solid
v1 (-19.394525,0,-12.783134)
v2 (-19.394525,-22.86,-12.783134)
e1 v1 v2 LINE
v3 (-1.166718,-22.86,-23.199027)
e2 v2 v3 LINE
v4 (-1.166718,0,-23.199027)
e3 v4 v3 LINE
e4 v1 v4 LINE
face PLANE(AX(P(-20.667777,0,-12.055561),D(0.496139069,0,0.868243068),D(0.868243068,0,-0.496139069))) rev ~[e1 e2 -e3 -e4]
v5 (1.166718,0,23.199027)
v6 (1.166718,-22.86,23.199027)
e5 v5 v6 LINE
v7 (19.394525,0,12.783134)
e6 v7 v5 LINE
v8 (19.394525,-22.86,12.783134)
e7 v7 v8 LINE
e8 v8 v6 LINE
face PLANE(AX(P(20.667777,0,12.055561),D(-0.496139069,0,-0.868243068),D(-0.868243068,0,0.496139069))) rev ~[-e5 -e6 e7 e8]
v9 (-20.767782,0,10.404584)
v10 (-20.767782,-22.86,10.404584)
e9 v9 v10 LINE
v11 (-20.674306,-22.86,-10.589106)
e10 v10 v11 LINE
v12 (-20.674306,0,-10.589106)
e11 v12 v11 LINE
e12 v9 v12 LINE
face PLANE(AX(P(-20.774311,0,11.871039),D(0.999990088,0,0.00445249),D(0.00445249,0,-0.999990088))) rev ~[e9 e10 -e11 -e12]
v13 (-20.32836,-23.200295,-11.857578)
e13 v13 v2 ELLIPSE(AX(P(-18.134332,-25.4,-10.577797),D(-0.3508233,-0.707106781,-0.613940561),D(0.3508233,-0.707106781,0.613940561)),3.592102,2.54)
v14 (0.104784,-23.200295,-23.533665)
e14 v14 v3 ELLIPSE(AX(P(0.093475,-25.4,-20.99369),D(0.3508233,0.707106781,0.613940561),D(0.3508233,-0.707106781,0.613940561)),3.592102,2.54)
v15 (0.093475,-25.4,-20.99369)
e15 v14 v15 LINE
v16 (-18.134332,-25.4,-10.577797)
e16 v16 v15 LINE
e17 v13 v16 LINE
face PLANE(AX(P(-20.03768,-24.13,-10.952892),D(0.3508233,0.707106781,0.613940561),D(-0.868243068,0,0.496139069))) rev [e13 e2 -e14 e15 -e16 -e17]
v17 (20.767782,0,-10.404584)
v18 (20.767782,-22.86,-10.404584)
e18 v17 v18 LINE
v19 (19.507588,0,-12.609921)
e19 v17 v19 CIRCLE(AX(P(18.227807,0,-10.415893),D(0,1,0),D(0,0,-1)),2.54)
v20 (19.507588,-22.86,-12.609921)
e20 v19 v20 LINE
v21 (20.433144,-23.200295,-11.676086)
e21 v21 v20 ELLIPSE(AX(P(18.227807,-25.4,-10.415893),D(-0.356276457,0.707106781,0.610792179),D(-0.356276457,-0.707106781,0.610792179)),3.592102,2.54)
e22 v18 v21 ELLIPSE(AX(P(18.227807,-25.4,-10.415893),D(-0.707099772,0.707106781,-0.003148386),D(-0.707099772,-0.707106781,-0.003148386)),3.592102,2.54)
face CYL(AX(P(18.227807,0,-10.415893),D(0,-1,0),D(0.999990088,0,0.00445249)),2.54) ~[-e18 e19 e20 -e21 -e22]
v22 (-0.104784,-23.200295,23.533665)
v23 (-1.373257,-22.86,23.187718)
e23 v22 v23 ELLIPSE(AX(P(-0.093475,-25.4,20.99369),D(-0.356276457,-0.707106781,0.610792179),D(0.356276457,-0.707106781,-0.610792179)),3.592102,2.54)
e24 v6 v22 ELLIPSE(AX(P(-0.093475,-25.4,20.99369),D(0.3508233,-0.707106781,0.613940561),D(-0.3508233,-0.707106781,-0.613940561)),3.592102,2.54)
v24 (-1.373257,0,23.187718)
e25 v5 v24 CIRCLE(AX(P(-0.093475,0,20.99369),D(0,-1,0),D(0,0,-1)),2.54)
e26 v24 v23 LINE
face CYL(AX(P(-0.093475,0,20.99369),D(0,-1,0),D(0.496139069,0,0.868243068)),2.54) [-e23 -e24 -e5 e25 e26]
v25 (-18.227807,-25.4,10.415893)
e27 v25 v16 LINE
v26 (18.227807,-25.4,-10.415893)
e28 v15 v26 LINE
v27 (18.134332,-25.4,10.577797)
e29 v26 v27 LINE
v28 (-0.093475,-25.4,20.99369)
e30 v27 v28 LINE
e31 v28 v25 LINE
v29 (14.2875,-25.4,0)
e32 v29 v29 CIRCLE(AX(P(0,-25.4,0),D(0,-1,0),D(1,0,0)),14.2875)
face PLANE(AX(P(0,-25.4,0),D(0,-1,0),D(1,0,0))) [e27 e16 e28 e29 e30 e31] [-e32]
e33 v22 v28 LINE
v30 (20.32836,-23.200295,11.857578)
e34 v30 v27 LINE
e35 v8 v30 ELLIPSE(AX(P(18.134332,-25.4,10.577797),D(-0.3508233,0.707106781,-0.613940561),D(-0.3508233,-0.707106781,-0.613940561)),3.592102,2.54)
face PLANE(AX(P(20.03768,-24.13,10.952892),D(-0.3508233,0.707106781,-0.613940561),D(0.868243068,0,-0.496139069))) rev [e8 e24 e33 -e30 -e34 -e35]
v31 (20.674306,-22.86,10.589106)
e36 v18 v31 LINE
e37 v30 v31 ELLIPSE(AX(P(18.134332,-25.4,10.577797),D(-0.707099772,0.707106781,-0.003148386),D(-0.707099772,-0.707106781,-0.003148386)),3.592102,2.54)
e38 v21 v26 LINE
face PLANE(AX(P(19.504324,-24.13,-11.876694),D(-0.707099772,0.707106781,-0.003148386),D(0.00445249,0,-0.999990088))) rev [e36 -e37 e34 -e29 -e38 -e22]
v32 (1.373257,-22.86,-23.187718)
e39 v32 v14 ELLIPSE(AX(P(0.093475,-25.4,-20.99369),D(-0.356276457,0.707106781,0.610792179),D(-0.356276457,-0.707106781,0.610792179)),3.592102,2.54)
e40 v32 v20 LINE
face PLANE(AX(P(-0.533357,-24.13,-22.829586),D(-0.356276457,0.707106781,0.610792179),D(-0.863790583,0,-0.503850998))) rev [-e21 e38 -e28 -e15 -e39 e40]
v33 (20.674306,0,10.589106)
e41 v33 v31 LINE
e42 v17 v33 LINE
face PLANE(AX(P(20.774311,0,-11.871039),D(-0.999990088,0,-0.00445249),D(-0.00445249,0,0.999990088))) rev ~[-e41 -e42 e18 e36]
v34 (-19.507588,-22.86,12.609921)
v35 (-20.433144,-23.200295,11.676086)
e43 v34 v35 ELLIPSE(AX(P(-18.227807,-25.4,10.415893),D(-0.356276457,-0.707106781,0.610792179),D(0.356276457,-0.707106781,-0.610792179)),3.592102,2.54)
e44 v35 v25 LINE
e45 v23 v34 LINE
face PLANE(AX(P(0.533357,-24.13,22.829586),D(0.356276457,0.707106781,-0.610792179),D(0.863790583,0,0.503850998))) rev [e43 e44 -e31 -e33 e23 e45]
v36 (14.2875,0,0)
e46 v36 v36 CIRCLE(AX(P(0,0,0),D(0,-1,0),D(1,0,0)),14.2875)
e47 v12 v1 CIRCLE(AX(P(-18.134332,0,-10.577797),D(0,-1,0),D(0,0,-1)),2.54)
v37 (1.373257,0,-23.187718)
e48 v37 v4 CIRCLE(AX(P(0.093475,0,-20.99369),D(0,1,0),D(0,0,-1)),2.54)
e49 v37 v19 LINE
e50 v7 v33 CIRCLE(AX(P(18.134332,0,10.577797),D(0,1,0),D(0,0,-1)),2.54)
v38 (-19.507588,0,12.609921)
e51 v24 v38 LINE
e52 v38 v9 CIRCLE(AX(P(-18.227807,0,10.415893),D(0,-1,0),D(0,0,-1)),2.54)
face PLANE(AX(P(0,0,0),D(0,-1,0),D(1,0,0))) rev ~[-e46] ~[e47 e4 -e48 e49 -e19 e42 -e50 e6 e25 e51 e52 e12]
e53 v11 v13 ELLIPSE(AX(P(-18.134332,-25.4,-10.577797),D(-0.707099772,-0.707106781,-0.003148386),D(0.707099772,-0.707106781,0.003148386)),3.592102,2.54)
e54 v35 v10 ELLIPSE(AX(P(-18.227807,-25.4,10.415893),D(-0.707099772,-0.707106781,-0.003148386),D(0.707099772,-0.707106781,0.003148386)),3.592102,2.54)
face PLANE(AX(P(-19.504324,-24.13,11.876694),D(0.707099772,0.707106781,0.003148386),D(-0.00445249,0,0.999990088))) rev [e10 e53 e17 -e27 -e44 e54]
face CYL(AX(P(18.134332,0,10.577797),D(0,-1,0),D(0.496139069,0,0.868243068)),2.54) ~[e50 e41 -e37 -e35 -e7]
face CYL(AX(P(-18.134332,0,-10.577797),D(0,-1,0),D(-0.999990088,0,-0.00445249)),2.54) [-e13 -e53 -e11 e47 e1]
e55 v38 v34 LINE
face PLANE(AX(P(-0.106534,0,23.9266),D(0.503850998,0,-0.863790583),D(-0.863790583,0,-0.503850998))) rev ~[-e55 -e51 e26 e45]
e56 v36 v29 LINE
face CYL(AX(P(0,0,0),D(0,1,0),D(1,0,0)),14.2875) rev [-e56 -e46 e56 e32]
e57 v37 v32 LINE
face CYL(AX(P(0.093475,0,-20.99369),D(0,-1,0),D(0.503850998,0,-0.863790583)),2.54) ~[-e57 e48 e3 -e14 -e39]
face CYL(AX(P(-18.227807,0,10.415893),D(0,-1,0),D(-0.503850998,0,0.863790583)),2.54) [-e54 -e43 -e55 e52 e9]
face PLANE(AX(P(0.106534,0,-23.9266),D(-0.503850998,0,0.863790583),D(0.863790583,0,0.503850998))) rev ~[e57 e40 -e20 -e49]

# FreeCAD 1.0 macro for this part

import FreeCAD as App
import Part
import Sketcher

V = App.Vector
Q = App.Units.Quantity


def edges_at(feature, points):
    """Names of the edges that pass closest to the given points."""
    edges = feature.Shape.Edges
    near = lambda p: min(range(len(edges)), key=lambda i: edges[i].distToShape(Part.Vertex(*p))[0])
    return sorted({f"Edge{near(p) + 1}" for p in points})


def add_polygon(sketch, points):
    """Adds a closed chain of lines whose ends are joined by coincident constraints."""
    first, n = sketch.GeometryCount, len(points)
    for a, b in zip(points, points[1:] + points[:1]):
        sketch.addGeometry(Part.LineSegment(App.Vector(*a, 0), App.Vector(*b, 0)), False)
    for i in range(n):
        sketch.addConstraint(Sketcher.Constraint("Coincident", first + i, 2, first + (i + 1) % n, 1))

doc = App.newDocument("Part")
body = doc.addObject("PartDesign::Body", "Body")

sketch1 = body.newObject("Sketcher::SketchObject", "Sketch")
sketch1.AttachmentSupport = (doc.getObject("XZ_Plane"), [""])
sketch1.MapMode = "FlatFace"
add_polygon(sketch1, [(21, 12), (0, 24), (-21, 12), (-21, -12), (0, -24), (21, -12)])
sketch1.addGeometry(Part.Circle(V(0, 0, 0), V(0, 0, 1), 14), False)
sketch1.addConstraint([
    Sketcher.Constraint("Coincident", 6, 3, -1, 1),
    Sketcher.Constraint("Symmetric", 0, 2, 3, 2, -1, 1),
    Sketcher.Constraint("Symmetric", 1, 2, 4, 2, -1, 1),
    Sketcher.Constraint("Symmetric", 2, 2, 5, 2, -1, 1),
    Sketcher.Constraint("Equal", 0, 1),
    Sketcher.Constraint("Equal", 1, 2),
    Sketcher.Constraint("Diameter", 6, Q("1.125 in")),
    Sketcher.Constraint("DistanceY", -1, 1, 0, 2, Q("23.9266 mm")),
    Sketcher.Constraint("DistanceY", 2, 2, 1, 2, Q("23.9266 mm")),
    Sketcher.Constraint("DistanceX", 1, 2, -1, 1, Q("20.774311 mm")),
    Sketcher.Constraint("DistanceY", -1, 1, 1, 2, Q("11.871039 mm")),
])
pad1 = body.newObject("PartDesign::Pad", "Pad")
pad1.Profile = sketch1
pad1.Length = Q("1 in")
doc.recompute()

chamfer = body.newObject("PartDesign::Chamfer", "Chamfer")
chamfer.Base = (pad1, edges_at(pad1, [
    (-10.44, -25.4, 17.899),
    (-20.721, -25.4, -0.092),
    (-10.281, -25.4, -17.991),
    (10.44, -25.4, -17.899),
    (20.721, -25.4, 0.092),
    (10.281, -25.4, 17.991),
]))
chamfer.Size = Q("0.1 in")
doc.recompute()

fillet = body.newObject("PartDesign::Fillet", "Fillet")
fillet.Base = (chamfer, edges_at(chamfer, [
    (-20.774, -11.43, 11.871),
    (-0.107, -11.43, 23.927),
    (-20.668, -11.43, -12.056),
    (0.107, -11.43, -23.927),
    (20.774, -11.43, -11.871),
    (20.668, -11.43, 12.056),
]))
fillet.Radius = Q("0.1 in")

doc.recompute()
